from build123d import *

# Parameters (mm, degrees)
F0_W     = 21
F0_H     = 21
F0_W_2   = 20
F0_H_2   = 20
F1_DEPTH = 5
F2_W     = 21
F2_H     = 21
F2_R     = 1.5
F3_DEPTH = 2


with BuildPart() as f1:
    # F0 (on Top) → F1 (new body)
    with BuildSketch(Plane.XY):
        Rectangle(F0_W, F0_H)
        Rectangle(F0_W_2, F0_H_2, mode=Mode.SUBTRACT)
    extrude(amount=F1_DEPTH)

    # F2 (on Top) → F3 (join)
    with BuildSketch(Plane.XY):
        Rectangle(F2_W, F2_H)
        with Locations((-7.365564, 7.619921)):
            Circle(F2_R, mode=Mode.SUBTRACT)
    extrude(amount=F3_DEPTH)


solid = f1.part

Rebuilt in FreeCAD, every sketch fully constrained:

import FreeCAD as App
import Part
import Sketcher

V = App.Vector
Q = App.Units.Quantity


def add_polygon(sketch, points):
    """Adds a closed chain of lines whose ends are joined by coincident constraints."""
    first, n = sketch.GeometryCount, len(points)
    for a, b in zip(points, points[1:] + points[:1]):
        sketch.addGeometry(Part.LineSegment(App.Vector(*a, 0), App.Vector(*b, 0)), False)
    for i in range(n):
        sketch.addConstraint(Sketcher.Constraint("Coincident", first + i, 2, first + (i + 1) % n, 1))

doc = App.newDocument("Part")
body = doc.addObject("PartDesign::Body", "Body")

sketch1 = body.newObject("Sketcher::SketchObject", "Sketch")
sketch1.AttachmentSupport = (doc.getObject("XY_Plane"), [""])
sketch1.MapMode = "FlatFace"
add_polygon(sketch1, [(-10, 10), (-10, -10), (10, -10), (10, 10)])
add_polygon(sketch1, [(10, -10), (-10, -10), (-10, 10), (10, 10)])
sketch1.addConstraint([
    Sketcher.Constraint("Vertical", 0),
    Sketcher.Constraint("Horizontal", 1),
    Sketcher.Constraint("Vertical", 2),
    Sketcher.Constraint("Horizontal", 3),
    Sketcher.Constraint("Horizontal", 4),
    Sketcher.Constraint("Vertical", 5),
    Sketcher.Constraint("Horizontal", 6),
    Sketcher.Constraint("Vertical", 7),
    Sketcher.Constraint("Symmetric", 0, 2, 2, 2, -1, 1),
    Sketcher.Constraint("Symmetric", 4, 2, 6, 2, -1, 1),
    Sketcher.Constraint("Equal", 3, 0),
    Sketcher.Constraint("Equal", 6, 5),
    Sketcher.Constraint("DistanceX", 1, 1, 1, 2, Q("21 mm")),
    Sketcher.Constraint("DistanceX", 4, 2, 4, 1, Q("20 mm")),
])
pad1 = body.newObject("PartDesign::Pad", "Pad")
pad1.Profile = sketch1
pad1.Length = 5

sketch2 = body.newObject("Sketcher::SketchObject", "Sketch001")
sketch2.AttachmentSupport = (doc.getObject("XY_Plane"), [""])
sketch2.MapMode = "FlatFace"
add_polygon(sketch2, [(-10.5, 10.5), (-10.5, -10.5), (10.5, -10.5), (10.5, 10.5)])
sketch2.addGeometry(Part.Circle(V(-7.4, 7.6, 0), V(0, 0, 1), 1.5), False)
sketch2.addConstraint([
    Sketcher.Constraint("Vertical", 0),
    Sketcher.Constraint("Horizontal", 1),
    Sketcher.Constraint("Vertical", 2),
    Sketcher.Constraint("Horizontal", 3),
    Sketcher.Constraint("Symmetric", 0, 2, 2, 2, -1, 1),
    Sketcher.Constraint("Equal", 3, 0),
    Sketcher.Constraint("Diameter", 4, Q("3 mm")),
    Sketcher.Constraint("DistanceX", 1, 1, 1, 2, Q("21 mm")),
    Sketcher.Constraint("DistanceY", -1, 1, 4, 3, Q("7.619921 mm")),
    Sketcher.Constraint("DistanceX", 4, 3, -1, 1, Q("7.365564 mm")),
])
pad2 = body.newObject("PartDesign::Pad", "Pad001")
pad2.Profile = sketch2
pad2.Length = 2

doc.recompute()
